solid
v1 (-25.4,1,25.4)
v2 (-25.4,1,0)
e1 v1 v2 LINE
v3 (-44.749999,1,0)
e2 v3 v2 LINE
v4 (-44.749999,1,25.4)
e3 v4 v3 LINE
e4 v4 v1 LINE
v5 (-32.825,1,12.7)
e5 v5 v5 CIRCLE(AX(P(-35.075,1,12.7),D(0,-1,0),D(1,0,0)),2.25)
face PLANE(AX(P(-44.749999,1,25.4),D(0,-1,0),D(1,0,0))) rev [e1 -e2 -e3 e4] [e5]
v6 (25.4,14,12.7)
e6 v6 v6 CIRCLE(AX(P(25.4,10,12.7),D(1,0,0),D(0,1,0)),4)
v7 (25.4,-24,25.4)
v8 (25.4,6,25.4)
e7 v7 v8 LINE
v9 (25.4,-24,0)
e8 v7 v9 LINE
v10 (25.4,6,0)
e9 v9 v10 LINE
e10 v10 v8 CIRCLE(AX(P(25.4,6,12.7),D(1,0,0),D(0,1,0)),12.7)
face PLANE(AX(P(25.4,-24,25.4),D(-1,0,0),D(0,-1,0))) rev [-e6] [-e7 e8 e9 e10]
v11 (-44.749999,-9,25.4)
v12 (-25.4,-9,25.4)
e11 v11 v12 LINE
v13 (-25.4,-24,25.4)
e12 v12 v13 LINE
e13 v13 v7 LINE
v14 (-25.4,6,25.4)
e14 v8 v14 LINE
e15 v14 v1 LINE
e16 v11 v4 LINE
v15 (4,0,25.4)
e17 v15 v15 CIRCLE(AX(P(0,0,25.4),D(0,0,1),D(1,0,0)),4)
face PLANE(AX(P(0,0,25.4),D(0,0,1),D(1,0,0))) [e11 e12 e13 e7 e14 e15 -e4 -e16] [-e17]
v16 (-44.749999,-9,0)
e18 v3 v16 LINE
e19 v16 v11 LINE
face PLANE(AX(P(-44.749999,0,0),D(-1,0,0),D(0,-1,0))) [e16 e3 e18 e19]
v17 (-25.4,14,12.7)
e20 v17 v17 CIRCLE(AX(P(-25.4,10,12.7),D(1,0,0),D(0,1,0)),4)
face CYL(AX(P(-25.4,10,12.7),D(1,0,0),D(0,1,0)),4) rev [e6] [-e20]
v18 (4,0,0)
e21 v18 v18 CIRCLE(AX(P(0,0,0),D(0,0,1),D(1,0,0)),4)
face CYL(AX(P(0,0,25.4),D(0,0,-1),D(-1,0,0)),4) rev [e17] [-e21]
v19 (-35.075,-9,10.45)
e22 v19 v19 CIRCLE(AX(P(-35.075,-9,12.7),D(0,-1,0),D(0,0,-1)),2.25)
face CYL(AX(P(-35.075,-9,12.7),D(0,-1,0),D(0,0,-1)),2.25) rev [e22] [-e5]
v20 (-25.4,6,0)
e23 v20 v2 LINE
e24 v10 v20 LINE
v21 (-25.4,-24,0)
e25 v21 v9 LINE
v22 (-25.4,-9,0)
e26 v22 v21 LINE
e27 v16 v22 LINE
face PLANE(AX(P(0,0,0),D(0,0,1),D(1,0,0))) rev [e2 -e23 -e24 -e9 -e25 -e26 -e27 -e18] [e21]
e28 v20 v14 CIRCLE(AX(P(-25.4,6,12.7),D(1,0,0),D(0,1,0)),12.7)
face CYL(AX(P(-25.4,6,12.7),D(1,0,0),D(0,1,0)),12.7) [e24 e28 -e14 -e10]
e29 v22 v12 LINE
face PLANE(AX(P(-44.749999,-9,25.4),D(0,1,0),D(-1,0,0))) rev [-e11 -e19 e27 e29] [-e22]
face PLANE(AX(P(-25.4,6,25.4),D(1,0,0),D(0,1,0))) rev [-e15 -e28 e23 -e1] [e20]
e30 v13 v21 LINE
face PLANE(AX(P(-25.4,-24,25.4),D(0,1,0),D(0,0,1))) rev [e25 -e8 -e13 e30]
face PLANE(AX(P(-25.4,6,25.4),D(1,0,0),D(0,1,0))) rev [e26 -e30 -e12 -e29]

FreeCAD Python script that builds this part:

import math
import FreeCAD as App
import Part
import Sketcher
from FreeCAD import Vector


def add_polygon(sketch, points):
    """Adds a closed chain of lines whose ends are joined by coincident constraints."""
    first, n = sketch.GeometryCount, len(points)
    for a, b in zip(points, points[1:] + points[:1]):
        sketch.addGeometry(Part.LineSegment(App.Vector(*a, 0), App.Vector(*b, 0)), False)
    for i in range(n):
        sketch.addConstraint(Sketcher.Constraint("Coincident", first + i, 2, first + (i + 1) % n, 1))

doc = App.newDocument("Part")
body = doc.addObject("PartDesign::Body", "Body")

sketch1 = body.newObject("Sketcher::SketchObject", "Sketch")
sketch1.AttachmentSupport = (doc.getObject("XY_Plane"), [""])
sketch1.MapMode = "FlatFace"
add_polygon(sketch1, [(-25.4, 6), (-25.4, -24), (25.4, -24), (25.4, 6)])
sketch1.addGeometry(Part.Circle(Vector(0, 0, 0), Vector(0, 0, 1), 4), False)
sketch1.addConstraint([
    Sketcher.Constraint("Vertical", 0),
    Sketcher.Constraint("Horizontal", 1),
    Sketcher.Constraint("Vertical", 2),
    Sketcher.Constraint("Horizontal", 3),
    Sketcher.Constraint("Coincident", 4, 3, -1, 1),
    Sketcher.Constraint("Diameter", 4, 8.0),
    Sketcher.Constraint("DistanceY", 0, 2, 0, 1, 30.0),
    Sketcher.Constraint("DistanceX", 1, 1, 1, 2, 50.8),
    Sketcher.Constraint("DistanceY", 0, 2, -1, 1, 24.0),
    Sketcher.Constraint("DistanceX", 0, 2, -1, 1, 25.4),
])
pad1 = body.newObject("PartDesign::Pad", "Pad")
pad1.Profile = sketch1
pad1.Length = 25.4

sketch2 = body.newObject("Sketcher::SketchObject", "Sketch001")
sketch2.AttachmentSupport = (doc.getObject("YZ_Plane"), [""])
sketch2.MapMode = "FlatFace"
sketch2.AttachmentOffset = App.Placement(Vector(0, 0, 25.4), App.Rotation())
sketch2.addGeometry([
    Part.LineSegment(Vector(6, 25.4, 0), Vector(5, 25.4, 0)),
    Part.LineSegment(Vector(5, 25.4, 0), Vector(5, 0, 0)),
    Part.LineSegment(Vector(5, 0, 0), Vector(6, 0, 0)),
    Part.ArcOfCircle(Part.Circle(Vector(6, 12.7, 0), Vector(0, 0, 1), 12.7), math.radians(-90), math.radians(90)),
    Part.Circle(Vector(10, 12.7, 0), Vector(0, 0, 1), 4),
], False)
sketch2.addConstraint([
    Sketcher.Constraint("Coincident", 0, 2, 1, 1),
    Sketcher.Constraint("Coincident", 1, 2, 2, 1),
    Sketcher.Constraint("Tangent", 2, 2, 3, 1),
    Sketcher.Constraint("Tangent", 3, 2, 0, 1),
    Sketcher.Constraint("Horizontal", 0),
    Sketcher.Constraint("Vertical", 1),
    Sketcher.Constraint("Horizontal", 2),
    Sketcher.Constraint("PointOnObject", 1, 2, -1),
    Sketcher.Constraint("Horizontal", 3, 3, 4, 3),
    Sketcher.Constraint("Diameter", 4, 8.0),
    Sketcher.Constraint("Radius", 3, 12.7),
    Sketcher.Constraint("DistanceX", 0, 2, 0, 1, 1.0),
    Sketcher.Constraint("DistanceX", -1, 1, 3, 3, 6.0),
    Sketcher.Constraint("DistanceX", -1, 1, 4, 3, 10.0),
])
pad2 = body.newObject("PartDesign::Pad", "Pad001")
pad2.Profile = sketch2
pad2.Length = 50.8
pad2.Reversed = True

sketch3 = body.newObject("Sketcher::SketchObject", "Sketch002")
sketch3.AttachmentSupport = (doc.getObject("YZ_Plane"), [""])
sketch3.MapMode = "FlatFace"
sketch3.AttachmentOffset = App.Placement(Vector(0, 0, -25.4), App.Rotation())
add_polygon(sketch3, [(1, 0), (-9, 0), (-9, 25.4), (1, 25.4)])
sketch3.addConstraint([
    Sketcher.Constraint("Horizontal", 0),
    Sketcher.Constraint("Vertical", 1),
    Sketcher.Constraint("Horizontal", 2),
    Sketcher.Constraint("Vertical", 3),
    Sketcher.Constraint("PointOnObject", 0, 2, -1),
    Sketcher.Constraint("DistanceX", 0, 2, 0, 1, 10.0),
    Sketcher.Constraint("DistanceY", 1, 1, 1, 2, 25.4),
    Sketcher.Constraint("DistanceX", 0, 2, -1, 1, 9.0),
])
pad3 = body.newObject("PartDesign::Pad", "Pad002")
pad3.Profile = sketch3
pad3.Length = 19.349999
pad3.Reversed = True

sketch4 = body.newObject("Sketcher::SketchObject", "Sketch003")
sketch4.AttachmentSupport = (doc.getObject("XZ_Plane"), [""])
sketch4.MapMode = "FlatFace"
sketch4.AttachmentOffset = App.Placement(Vector(0, 0, 9), App.Rotation())
sketch4.addGeometry(Part.Circle(Vector(-35.075, 12.7, 0), Vector(0, 0, 1), 2.25), False)
sketch4.addConstraint([
    Sketcher.Constraint("Diameter", 0, 4.5),
    Sketcher.Constraint("DistanceY", -1, 1, 0, 3, 12.7),
    Sketcher.Constraint("DistanceX", 0, 3, -1, 1, 35.075),
])
doc.recompute()
hole = body.newObject("PartDesign::Hole", "Hole")
hole.Profile = sketch4
hole.ThreadType = "None"
hole.Diameter = 4.5
hole.DepthType = "ThroughAll"

doc.recompute()
